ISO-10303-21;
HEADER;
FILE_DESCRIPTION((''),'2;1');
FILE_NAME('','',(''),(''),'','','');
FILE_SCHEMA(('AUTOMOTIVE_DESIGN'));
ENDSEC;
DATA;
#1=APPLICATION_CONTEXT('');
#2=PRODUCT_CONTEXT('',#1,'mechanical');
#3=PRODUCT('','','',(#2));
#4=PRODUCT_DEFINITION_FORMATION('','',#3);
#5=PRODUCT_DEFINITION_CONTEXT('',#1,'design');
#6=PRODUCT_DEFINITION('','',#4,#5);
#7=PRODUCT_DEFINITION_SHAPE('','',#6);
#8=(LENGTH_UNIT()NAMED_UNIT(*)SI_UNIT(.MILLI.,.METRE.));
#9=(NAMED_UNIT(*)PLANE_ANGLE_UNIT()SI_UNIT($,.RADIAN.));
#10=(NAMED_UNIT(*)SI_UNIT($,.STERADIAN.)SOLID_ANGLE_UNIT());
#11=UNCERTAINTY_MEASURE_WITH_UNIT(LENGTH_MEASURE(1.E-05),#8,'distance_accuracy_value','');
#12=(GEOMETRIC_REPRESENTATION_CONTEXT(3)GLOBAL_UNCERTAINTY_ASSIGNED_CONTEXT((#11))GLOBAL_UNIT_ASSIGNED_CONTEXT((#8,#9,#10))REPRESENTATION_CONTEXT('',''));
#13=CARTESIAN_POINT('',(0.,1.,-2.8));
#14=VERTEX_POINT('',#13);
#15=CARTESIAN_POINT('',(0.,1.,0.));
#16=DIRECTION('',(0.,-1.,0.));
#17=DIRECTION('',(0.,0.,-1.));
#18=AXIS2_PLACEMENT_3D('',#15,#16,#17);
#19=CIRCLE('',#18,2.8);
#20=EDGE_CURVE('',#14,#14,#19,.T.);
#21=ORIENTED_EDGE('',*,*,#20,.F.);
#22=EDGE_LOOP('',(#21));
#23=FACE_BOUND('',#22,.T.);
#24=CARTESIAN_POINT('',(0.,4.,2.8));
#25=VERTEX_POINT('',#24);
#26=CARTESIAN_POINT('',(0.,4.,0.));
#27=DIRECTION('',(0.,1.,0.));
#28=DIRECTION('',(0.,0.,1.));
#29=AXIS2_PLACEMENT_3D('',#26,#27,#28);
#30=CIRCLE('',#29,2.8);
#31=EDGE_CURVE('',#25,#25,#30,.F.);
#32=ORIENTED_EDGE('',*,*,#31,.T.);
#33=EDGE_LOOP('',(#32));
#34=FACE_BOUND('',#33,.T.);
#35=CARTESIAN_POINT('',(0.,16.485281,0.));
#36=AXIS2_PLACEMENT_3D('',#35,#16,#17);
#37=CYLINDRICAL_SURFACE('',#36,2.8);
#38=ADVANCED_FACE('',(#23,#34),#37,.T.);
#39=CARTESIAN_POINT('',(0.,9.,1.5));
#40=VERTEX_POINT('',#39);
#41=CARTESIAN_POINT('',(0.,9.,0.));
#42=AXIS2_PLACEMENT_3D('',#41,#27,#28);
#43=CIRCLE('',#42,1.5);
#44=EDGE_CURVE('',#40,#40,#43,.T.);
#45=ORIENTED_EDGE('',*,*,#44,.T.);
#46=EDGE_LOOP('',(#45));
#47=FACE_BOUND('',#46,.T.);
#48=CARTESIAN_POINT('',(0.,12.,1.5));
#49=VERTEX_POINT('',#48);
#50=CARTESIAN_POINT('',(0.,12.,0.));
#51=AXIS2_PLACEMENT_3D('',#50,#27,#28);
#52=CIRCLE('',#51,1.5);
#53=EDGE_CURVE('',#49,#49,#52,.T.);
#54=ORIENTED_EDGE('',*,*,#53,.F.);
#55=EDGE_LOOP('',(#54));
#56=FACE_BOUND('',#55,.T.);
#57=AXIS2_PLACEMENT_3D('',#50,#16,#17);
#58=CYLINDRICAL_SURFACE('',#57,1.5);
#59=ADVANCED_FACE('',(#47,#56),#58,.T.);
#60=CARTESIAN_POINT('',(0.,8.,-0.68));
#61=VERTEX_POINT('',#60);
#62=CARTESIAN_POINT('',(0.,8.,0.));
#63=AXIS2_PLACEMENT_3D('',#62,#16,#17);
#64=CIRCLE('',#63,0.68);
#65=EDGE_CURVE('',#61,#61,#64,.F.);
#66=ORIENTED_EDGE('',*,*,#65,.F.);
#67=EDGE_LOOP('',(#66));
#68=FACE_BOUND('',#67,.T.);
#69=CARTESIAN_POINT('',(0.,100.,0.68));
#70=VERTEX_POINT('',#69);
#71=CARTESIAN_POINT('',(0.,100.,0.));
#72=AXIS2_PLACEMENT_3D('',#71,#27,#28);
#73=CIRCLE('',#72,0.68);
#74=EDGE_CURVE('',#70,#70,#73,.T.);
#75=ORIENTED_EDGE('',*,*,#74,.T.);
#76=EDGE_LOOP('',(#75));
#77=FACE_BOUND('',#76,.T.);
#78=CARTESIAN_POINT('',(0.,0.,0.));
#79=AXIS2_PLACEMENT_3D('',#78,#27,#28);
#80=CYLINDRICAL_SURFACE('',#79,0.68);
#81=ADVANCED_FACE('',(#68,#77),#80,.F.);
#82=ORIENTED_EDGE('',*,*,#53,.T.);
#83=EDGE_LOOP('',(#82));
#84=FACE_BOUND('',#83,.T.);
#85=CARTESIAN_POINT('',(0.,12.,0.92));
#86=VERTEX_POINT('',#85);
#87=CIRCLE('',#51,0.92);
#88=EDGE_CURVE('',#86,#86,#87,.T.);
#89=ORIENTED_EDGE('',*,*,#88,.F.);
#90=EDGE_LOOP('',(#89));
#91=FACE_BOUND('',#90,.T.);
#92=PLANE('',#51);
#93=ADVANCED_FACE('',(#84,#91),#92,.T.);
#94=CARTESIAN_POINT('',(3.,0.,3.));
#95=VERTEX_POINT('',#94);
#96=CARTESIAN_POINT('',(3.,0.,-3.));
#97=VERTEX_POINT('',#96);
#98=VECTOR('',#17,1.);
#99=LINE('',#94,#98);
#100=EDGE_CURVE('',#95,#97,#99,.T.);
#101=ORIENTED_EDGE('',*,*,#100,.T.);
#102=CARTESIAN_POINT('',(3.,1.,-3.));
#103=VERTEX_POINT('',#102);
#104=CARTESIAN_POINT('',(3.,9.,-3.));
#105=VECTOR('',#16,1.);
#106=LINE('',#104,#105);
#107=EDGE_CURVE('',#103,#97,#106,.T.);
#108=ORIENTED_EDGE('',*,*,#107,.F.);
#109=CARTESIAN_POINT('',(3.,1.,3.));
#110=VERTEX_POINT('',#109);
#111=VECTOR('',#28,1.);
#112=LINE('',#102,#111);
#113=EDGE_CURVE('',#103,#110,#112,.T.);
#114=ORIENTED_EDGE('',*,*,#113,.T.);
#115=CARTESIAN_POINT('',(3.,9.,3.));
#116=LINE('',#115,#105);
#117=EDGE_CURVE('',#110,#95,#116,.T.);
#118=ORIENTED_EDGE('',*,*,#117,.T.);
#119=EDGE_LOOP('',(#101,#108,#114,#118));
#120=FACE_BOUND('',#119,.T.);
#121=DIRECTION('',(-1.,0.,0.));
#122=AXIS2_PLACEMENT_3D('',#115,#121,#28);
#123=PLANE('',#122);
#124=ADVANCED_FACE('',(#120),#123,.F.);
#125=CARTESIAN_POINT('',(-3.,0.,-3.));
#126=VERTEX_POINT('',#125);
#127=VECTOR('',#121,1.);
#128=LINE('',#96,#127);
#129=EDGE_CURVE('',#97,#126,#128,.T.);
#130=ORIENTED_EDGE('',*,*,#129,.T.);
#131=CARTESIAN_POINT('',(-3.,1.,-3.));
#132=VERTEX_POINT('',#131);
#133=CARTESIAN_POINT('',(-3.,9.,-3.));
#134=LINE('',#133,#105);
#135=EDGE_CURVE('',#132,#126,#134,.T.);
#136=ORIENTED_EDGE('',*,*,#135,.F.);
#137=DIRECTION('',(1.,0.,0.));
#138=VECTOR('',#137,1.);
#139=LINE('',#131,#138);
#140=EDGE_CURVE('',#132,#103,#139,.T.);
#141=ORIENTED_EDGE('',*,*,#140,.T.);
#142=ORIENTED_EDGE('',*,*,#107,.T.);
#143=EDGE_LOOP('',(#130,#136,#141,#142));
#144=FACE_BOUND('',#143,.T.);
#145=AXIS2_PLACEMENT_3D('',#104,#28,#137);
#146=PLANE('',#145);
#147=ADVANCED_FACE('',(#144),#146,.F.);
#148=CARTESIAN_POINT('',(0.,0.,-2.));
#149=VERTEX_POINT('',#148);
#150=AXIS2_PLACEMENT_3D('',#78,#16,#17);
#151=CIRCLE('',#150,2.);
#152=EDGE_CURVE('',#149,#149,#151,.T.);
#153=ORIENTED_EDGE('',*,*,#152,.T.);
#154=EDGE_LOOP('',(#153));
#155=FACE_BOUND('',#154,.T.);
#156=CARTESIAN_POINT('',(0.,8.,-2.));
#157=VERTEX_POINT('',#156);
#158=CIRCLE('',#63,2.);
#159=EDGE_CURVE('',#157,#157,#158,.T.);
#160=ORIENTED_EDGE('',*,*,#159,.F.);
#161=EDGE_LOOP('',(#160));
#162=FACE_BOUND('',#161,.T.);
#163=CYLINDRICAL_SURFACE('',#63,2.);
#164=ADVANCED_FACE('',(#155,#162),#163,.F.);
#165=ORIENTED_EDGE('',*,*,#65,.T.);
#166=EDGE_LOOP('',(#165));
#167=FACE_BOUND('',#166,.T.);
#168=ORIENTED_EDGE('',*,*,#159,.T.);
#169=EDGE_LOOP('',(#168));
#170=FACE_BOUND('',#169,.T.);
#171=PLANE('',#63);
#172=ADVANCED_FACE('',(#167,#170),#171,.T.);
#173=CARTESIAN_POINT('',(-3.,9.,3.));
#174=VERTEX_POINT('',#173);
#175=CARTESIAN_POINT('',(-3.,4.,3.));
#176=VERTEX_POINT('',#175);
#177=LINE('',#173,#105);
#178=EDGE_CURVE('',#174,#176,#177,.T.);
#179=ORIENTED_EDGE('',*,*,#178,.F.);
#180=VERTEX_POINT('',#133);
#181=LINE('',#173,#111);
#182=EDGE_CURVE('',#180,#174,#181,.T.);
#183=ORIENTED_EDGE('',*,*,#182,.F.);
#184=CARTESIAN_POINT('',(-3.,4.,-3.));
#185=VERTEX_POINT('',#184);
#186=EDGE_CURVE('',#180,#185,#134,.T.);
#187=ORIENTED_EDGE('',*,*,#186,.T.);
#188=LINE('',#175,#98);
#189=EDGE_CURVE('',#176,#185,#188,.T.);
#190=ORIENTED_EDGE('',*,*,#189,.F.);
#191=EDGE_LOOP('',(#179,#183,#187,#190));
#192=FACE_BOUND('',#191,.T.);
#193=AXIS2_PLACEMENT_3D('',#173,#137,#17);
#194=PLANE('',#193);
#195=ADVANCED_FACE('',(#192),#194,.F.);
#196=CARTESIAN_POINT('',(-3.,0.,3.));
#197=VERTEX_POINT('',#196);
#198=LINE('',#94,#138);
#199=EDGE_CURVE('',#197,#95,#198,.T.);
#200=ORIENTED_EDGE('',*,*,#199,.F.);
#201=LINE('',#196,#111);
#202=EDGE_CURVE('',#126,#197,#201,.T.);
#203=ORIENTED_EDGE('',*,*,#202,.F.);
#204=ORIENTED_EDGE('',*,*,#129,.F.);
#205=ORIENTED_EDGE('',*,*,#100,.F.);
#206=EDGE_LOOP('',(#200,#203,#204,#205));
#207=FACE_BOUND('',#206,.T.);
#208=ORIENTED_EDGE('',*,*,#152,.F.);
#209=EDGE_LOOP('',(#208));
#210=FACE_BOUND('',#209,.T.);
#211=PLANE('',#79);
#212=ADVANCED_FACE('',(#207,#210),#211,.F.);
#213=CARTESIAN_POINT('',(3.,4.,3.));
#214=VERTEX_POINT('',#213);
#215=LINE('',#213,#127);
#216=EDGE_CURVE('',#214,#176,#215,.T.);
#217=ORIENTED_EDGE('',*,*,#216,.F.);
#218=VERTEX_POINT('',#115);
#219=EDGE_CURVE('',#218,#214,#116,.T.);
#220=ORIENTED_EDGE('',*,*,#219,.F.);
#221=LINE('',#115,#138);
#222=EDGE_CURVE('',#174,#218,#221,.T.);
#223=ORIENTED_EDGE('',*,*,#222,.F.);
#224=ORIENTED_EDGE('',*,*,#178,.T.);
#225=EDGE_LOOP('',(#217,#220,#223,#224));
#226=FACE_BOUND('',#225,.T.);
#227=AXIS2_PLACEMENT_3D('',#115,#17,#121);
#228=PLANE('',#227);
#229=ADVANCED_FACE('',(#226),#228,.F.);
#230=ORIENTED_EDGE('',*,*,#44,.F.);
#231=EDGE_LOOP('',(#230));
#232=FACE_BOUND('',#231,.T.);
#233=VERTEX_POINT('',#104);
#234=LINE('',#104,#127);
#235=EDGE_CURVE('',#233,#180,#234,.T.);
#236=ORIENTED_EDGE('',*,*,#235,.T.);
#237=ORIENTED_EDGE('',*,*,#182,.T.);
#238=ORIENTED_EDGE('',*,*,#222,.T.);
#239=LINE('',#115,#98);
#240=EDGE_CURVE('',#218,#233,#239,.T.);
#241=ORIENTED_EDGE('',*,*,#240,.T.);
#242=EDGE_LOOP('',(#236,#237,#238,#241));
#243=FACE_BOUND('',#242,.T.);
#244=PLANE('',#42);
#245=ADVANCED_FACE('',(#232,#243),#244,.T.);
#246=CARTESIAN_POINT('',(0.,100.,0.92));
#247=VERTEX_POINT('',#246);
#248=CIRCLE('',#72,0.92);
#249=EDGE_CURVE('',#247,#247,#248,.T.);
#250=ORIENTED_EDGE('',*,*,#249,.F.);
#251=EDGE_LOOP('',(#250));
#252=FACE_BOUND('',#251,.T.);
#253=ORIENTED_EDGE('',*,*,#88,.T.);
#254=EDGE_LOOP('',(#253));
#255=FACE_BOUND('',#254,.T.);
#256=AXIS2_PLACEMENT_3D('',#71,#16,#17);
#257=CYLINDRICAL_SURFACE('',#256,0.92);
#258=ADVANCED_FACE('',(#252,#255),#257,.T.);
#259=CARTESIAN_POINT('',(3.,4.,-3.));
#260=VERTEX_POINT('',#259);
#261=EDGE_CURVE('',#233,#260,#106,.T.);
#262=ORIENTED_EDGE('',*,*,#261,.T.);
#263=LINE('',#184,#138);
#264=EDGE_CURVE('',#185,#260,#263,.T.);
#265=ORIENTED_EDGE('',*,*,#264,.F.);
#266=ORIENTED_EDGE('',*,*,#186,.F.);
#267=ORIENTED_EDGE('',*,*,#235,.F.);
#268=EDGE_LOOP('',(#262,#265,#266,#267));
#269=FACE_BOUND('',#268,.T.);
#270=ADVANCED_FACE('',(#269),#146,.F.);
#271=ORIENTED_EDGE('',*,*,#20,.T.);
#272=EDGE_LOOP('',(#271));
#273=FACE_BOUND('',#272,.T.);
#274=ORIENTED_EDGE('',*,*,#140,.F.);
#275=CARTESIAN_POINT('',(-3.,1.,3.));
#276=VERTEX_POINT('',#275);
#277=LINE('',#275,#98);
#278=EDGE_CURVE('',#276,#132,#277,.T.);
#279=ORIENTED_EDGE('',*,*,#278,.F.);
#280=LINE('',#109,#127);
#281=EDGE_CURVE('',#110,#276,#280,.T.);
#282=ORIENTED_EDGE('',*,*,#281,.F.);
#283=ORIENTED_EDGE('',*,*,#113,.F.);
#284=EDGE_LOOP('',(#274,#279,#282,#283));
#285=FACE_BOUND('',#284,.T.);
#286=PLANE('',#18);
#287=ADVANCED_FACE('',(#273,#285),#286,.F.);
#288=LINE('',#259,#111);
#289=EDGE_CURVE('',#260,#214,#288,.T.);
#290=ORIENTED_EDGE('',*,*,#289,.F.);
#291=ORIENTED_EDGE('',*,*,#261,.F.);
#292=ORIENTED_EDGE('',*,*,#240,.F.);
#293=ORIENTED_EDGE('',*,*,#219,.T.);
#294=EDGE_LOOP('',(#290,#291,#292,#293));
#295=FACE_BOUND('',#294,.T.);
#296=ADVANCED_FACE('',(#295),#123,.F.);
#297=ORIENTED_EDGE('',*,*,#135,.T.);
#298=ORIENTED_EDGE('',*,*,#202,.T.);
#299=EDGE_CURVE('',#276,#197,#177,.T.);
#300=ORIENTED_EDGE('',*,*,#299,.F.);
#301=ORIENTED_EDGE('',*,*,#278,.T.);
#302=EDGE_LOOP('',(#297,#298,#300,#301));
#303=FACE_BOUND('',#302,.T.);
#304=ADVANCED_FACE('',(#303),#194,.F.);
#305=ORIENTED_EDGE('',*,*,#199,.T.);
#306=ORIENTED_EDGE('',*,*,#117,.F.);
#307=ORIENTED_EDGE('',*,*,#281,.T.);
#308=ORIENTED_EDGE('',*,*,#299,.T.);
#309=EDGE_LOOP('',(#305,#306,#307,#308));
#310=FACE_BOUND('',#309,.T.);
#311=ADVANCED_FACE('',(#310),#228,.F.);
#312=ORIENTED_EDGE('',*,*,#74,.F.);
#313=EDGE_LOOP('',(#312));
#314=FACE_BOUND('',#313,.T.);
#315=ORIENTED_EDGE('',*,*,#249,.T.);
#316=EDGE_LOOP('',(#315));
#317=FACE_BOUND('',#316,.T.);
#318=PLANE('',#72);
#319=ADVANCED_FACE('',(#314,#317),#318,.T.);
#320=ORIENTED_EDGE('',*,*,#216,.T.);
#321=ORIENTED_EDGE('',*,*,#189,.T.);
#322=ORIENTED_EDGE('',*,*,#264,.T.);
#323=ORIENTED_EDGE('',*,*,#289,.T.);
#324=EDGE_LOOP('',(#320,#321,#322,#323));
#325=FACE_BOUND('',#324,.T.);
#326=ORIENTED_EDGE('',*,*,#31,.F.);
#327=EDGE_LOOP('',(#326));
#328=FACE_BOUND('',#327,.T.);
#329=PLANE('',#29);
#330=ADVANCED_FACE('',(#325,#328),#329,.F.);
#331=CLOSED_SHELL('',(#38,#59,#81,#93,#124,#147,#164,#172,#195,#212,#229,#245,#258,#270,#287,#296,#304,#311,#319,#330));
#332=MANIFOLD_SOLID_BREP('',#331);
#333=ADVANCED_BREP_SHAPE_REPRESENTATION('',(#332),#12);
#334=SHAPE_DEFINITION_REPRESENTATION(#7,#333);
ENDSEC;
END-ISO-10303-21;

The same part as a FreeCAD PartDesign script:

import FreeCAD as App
import Part
import Sketcher

V = App.Vector

doc = App.newDocument("Part")
params = doc.addObject("Spreadsheet::Sheet", "Params")
for row, (alias, value) in enumerate([
    ("sketch1_width", "6 mm"),
    ("pad1_length", "9 mm"),
    ("sketch2_diameter", "3 mm"),
    ("pad2_length", "3 mm"),
    ("sketch3_diameter", "1.36 mm"),
    ("sketch4_diameter", "1.84 mm"),
    ("sketch4_diameter2", "1.36 mm"),
    ("pad3_length", "88 mm"),
    ("sketch5_diameter", "4 mm"),
    ("pocket2_length", "8 mm"),
    ("sketch6_diameter", "5.6 mm"),
    ("sketch6_width", "6 mm"),
    ("pocket3_length", "3 mm"),
], start=1):
    params.set(f"A{row}", alias)
    params.set(f"B{row}", "=" + value)
    params.setAlias(f"B{row}", alias)

body = doc.addObject("PartDesign::Body", "Body")

sketch1 = doc.addObject("Sketcher::SketchObject", "Sketch")
body.addObject(sketch1)
sketch1.AttachmentSupport = (doc.XZ_Plane, [""])
sketch1.MapMode = "FlatFace"
sketch1.addGeometry([
    Part.LineSegment(V(-3, -3, 0), V(-3, 3, 0)),
    Part.LineSegment(V(-3, 3, 0), V(3, 3, 0)),
    Part.LineSegment(V(3, 3, 0), V(3, -3, 0)),
    Part.LineSegment(V(3, -3, 0), V(-3, -3, 0)),
], False)
sketch1.addConstraint([
    Sketcher.Constraint("Coincident", 0, 2, 1, 1),
    Sketcher.Constraint("Coincident", 1, 2, 2, 1),
    Sketcher.Constraint("Coincident", 2, 2, 3, 1),
    Sketcher.Constraint("Coincident", 3, 2, 0, 1),
    Sketcher.Constraint("Vertical", 0),
    Sketcher.Constraint("Horizontal", 1),
    Sketcher.Constraint("Vertical", 2),
    Sketcher.Constraint("Horizontal", 3),
    Sketcher.Constraint("Symmetric", 0, 2, 2, 2, -1, 1),
    Sketcher.Constraint("Equal", 3, 0),
    Sketcher.Constraint("DistanceX", 1, 1, 1, 2, 6.0),
])
sketch1.setExpression("Constraints[10]", "Params.sketch1_width")
pad1 = doc.addObject("PartDesign::Pad", "Pad")
body.addObject(pad1)
pad1.Profile = sketch1
pad1.setExpression("Length", "Params.pad1_length")
pad1.Reversed = True

sketch2 = doc.addObject("Sketcher::SketchObject", "Sketch001")
body.addObject(sketch2)
sketch2.AttachmentSupport = (doc.XZ_Plane, [""])
sketch2.MapMode = "FlatFace"
sketch2.AttachmentOffset = App.Placement(V(0, 0, -9), App.Rotation())
sketch2.addGeometry(Part.Circle(V(0, 0, 0), V(0, 0, 1), 1.5), False)
sketch2.addConstraint([
    Sketcher.Constraint("Coincident", 0, 3, -1, 1),
    Sketcher.Constraint("Diameter", 0, 3.0),
])
sketch2.setExpression("Constraints[1]", "Params.sketch2_diameter")
pad2 = doc.addObject("PartDesign::Pad", "Pad001")
body.addObject(pad2)
pad2.Profile = sketch2
pad2.setExpression("Length", "Params.pad2_length")
pad2.Reversed = True

sketch3 = doc.addObject("Sketcher::SketchObject", "Sketch002")
body.addObject(sketch3)
sketch3.AttachmentSupport = (doc.XZ_Plane, [""])
sketch3.MapMode = "FlatFace"
sketch3.AttachmentOffset = App.Placement(V(0, 0, -12), App.Rotation())
sketch3.addGeometry(Part.Circle(V(0, 0, 0), V(0, 0, 1), 0.7), False)
sketch3.addConstraint([
    Sketcher.Constraint("Coincident", 0, 3, -1, 1),
    Sketcher.Constraint("Diameter", 0, 1.36),
])
sketch3.setExpression("Constraints[1]", "Params.sketch3_diameter")
pocket1 = doc.addObject("PartDesign::Pocket", "Pocket")
body.addObject(pocket1)
pocket1.Profile = sketch3
pocket1.Type = "ThroughAll"
pocket1.Midplane = True

sketch4 = doc.addObject("Sketcher::SketchObject", "Sketch003")
body.addObject(sketch4)
sketch4.AttachmentSupport = (doc.XZ_Plane, [""])
sketch4.MapMode = "FlatFace"
sketch4.AttachmentOffset = App.Placement(V(0, 0, -100), App.Rotation())
sketch4.addGeometry([
    Part.Circle(V(0, 0, 0), V(0, 0, 1), 0.9),
    Part.Circle(V(0, 0, 0), V(0, 0, 1), 0.7),
], False)
sketch4.addConstraint([
    Sketcher.Constraint("Coincident", 0, 3, -1, 1),
    Sketcher.Constraint("Coincident", 1, 3, -1, 1),
    Sketcher.Constraint("Diameter", 0, 1.84),
    Sketcher.Constraint("Diameter", 1, 1.36),
])
sketch4.setExpression("Constraints[2]", "Params.sketch4_diameter")
sketch4.setExpression("Constraints[3]", "Params.sketch4_diameter2")
pad3 = doc.addObject("PartDesign::Pad", "Pad002")
body.addObject(pad3)
pad3.Profile = sketch4
pad3.setExpression("Length", "Params.pad3_length")

sketch5 = doc.addObject("Sketcher::SketchObject", "Sketch004")
body.addObject(sketch5)
sketch5.AttachmentSupport = (doc.XZ_Plane, [""])
sketch5.MapMode = "FlatFace"
sketch5.addGeometry(Part.Circle(V(0, 0, 0), V(0, 0, 1), 2), False)
sketch5.addConstraint([
    Sketcher.Constraint("Coincident", 0, 3, -1, 1),
    Sketcher.Constraint("Diameter", 0, 4.0),
])
sketch5.setExpression("Constraints[1]", "Params.sketch5_diameter")
pocket2 = doc.addObject("PartDesign::Pocket", "Pocket001")
body.addObject(pocket2)
pocket2.Profile = sketch5
pocket2.setExpression("Length", "Params.pocket2_length")

sketch6 = doc.addObject("Sketcher::SketchObject", "Sketch005")
body.addObject(sketch6)
sketch6.AttachmentSupport = (doc.XZ_Plane, [""])
sketch6.MapMode = "FlatFace"
sketch6.AttachmentOffset = App.Placement(V(0, 0, -1), App.Rotation())
sketch6.addGeometry([
    Part.LineSegment(V(-3, 3, 0), V(-3, -3, 0)),
    Part.LineSegment(V(-3, -3, 0), V(3, -3, 0)),
    Part.LineSegment(V(3, -3, 0), V(3, 3, 0)),
    Part.LineSegment(V(3, 3, 0), V(-3, 3, 0)),
    Part.Circle(V(0, 0, 0), V(0, 0, 1), 2.8),
], False)
sketch6.addConstraint([
    Sketcher.Constraint("Coincident", 0, 2, 1, 1),
    Sketcher.Constraint("Coincident", 1, 2, 2, 1),
    Sketcher.Constraint("Coincident", 2, 2, 3, 1),
    Sketcher.Constraint("Coincident", 3, 2, 0, 1),
    Sketcher.Constraint("Vertical", 0),
    Sketcher.Constraint("Horizontal", 1),
    Sketcher.Constraint("Vertical", 2),
    Sketcher.Constraint("Horizontal", 3),
    Sketcher.Constraint("Coincident", 4, 3, -1, 1),
    Sketcher.Constraint("Symmetric", 0, 2, 2, 2, -1, 1),
    Sketcher.Constraint("Equal", 3, 0),
    Sketcher.Constraint("Diameter", 4, 5.6),
    Sketcher.Constraint("DistanceX", 1, 1, 1, 2, 6.0),
])
sketch6.setExpression("Constraints[11]", "Params.sketch6_diameter")
sketch6.setExpression("Constraints[12]", "Params.sketch6_width")
pocket3 = doc.addObject("PartDesign::Pocket", "Pocket002")
body.addObject(pocket3)
pocket3.Profile = sketch6
pocket3.setExpression("Length", "Params.pocket3_length")

doc.recompute()
